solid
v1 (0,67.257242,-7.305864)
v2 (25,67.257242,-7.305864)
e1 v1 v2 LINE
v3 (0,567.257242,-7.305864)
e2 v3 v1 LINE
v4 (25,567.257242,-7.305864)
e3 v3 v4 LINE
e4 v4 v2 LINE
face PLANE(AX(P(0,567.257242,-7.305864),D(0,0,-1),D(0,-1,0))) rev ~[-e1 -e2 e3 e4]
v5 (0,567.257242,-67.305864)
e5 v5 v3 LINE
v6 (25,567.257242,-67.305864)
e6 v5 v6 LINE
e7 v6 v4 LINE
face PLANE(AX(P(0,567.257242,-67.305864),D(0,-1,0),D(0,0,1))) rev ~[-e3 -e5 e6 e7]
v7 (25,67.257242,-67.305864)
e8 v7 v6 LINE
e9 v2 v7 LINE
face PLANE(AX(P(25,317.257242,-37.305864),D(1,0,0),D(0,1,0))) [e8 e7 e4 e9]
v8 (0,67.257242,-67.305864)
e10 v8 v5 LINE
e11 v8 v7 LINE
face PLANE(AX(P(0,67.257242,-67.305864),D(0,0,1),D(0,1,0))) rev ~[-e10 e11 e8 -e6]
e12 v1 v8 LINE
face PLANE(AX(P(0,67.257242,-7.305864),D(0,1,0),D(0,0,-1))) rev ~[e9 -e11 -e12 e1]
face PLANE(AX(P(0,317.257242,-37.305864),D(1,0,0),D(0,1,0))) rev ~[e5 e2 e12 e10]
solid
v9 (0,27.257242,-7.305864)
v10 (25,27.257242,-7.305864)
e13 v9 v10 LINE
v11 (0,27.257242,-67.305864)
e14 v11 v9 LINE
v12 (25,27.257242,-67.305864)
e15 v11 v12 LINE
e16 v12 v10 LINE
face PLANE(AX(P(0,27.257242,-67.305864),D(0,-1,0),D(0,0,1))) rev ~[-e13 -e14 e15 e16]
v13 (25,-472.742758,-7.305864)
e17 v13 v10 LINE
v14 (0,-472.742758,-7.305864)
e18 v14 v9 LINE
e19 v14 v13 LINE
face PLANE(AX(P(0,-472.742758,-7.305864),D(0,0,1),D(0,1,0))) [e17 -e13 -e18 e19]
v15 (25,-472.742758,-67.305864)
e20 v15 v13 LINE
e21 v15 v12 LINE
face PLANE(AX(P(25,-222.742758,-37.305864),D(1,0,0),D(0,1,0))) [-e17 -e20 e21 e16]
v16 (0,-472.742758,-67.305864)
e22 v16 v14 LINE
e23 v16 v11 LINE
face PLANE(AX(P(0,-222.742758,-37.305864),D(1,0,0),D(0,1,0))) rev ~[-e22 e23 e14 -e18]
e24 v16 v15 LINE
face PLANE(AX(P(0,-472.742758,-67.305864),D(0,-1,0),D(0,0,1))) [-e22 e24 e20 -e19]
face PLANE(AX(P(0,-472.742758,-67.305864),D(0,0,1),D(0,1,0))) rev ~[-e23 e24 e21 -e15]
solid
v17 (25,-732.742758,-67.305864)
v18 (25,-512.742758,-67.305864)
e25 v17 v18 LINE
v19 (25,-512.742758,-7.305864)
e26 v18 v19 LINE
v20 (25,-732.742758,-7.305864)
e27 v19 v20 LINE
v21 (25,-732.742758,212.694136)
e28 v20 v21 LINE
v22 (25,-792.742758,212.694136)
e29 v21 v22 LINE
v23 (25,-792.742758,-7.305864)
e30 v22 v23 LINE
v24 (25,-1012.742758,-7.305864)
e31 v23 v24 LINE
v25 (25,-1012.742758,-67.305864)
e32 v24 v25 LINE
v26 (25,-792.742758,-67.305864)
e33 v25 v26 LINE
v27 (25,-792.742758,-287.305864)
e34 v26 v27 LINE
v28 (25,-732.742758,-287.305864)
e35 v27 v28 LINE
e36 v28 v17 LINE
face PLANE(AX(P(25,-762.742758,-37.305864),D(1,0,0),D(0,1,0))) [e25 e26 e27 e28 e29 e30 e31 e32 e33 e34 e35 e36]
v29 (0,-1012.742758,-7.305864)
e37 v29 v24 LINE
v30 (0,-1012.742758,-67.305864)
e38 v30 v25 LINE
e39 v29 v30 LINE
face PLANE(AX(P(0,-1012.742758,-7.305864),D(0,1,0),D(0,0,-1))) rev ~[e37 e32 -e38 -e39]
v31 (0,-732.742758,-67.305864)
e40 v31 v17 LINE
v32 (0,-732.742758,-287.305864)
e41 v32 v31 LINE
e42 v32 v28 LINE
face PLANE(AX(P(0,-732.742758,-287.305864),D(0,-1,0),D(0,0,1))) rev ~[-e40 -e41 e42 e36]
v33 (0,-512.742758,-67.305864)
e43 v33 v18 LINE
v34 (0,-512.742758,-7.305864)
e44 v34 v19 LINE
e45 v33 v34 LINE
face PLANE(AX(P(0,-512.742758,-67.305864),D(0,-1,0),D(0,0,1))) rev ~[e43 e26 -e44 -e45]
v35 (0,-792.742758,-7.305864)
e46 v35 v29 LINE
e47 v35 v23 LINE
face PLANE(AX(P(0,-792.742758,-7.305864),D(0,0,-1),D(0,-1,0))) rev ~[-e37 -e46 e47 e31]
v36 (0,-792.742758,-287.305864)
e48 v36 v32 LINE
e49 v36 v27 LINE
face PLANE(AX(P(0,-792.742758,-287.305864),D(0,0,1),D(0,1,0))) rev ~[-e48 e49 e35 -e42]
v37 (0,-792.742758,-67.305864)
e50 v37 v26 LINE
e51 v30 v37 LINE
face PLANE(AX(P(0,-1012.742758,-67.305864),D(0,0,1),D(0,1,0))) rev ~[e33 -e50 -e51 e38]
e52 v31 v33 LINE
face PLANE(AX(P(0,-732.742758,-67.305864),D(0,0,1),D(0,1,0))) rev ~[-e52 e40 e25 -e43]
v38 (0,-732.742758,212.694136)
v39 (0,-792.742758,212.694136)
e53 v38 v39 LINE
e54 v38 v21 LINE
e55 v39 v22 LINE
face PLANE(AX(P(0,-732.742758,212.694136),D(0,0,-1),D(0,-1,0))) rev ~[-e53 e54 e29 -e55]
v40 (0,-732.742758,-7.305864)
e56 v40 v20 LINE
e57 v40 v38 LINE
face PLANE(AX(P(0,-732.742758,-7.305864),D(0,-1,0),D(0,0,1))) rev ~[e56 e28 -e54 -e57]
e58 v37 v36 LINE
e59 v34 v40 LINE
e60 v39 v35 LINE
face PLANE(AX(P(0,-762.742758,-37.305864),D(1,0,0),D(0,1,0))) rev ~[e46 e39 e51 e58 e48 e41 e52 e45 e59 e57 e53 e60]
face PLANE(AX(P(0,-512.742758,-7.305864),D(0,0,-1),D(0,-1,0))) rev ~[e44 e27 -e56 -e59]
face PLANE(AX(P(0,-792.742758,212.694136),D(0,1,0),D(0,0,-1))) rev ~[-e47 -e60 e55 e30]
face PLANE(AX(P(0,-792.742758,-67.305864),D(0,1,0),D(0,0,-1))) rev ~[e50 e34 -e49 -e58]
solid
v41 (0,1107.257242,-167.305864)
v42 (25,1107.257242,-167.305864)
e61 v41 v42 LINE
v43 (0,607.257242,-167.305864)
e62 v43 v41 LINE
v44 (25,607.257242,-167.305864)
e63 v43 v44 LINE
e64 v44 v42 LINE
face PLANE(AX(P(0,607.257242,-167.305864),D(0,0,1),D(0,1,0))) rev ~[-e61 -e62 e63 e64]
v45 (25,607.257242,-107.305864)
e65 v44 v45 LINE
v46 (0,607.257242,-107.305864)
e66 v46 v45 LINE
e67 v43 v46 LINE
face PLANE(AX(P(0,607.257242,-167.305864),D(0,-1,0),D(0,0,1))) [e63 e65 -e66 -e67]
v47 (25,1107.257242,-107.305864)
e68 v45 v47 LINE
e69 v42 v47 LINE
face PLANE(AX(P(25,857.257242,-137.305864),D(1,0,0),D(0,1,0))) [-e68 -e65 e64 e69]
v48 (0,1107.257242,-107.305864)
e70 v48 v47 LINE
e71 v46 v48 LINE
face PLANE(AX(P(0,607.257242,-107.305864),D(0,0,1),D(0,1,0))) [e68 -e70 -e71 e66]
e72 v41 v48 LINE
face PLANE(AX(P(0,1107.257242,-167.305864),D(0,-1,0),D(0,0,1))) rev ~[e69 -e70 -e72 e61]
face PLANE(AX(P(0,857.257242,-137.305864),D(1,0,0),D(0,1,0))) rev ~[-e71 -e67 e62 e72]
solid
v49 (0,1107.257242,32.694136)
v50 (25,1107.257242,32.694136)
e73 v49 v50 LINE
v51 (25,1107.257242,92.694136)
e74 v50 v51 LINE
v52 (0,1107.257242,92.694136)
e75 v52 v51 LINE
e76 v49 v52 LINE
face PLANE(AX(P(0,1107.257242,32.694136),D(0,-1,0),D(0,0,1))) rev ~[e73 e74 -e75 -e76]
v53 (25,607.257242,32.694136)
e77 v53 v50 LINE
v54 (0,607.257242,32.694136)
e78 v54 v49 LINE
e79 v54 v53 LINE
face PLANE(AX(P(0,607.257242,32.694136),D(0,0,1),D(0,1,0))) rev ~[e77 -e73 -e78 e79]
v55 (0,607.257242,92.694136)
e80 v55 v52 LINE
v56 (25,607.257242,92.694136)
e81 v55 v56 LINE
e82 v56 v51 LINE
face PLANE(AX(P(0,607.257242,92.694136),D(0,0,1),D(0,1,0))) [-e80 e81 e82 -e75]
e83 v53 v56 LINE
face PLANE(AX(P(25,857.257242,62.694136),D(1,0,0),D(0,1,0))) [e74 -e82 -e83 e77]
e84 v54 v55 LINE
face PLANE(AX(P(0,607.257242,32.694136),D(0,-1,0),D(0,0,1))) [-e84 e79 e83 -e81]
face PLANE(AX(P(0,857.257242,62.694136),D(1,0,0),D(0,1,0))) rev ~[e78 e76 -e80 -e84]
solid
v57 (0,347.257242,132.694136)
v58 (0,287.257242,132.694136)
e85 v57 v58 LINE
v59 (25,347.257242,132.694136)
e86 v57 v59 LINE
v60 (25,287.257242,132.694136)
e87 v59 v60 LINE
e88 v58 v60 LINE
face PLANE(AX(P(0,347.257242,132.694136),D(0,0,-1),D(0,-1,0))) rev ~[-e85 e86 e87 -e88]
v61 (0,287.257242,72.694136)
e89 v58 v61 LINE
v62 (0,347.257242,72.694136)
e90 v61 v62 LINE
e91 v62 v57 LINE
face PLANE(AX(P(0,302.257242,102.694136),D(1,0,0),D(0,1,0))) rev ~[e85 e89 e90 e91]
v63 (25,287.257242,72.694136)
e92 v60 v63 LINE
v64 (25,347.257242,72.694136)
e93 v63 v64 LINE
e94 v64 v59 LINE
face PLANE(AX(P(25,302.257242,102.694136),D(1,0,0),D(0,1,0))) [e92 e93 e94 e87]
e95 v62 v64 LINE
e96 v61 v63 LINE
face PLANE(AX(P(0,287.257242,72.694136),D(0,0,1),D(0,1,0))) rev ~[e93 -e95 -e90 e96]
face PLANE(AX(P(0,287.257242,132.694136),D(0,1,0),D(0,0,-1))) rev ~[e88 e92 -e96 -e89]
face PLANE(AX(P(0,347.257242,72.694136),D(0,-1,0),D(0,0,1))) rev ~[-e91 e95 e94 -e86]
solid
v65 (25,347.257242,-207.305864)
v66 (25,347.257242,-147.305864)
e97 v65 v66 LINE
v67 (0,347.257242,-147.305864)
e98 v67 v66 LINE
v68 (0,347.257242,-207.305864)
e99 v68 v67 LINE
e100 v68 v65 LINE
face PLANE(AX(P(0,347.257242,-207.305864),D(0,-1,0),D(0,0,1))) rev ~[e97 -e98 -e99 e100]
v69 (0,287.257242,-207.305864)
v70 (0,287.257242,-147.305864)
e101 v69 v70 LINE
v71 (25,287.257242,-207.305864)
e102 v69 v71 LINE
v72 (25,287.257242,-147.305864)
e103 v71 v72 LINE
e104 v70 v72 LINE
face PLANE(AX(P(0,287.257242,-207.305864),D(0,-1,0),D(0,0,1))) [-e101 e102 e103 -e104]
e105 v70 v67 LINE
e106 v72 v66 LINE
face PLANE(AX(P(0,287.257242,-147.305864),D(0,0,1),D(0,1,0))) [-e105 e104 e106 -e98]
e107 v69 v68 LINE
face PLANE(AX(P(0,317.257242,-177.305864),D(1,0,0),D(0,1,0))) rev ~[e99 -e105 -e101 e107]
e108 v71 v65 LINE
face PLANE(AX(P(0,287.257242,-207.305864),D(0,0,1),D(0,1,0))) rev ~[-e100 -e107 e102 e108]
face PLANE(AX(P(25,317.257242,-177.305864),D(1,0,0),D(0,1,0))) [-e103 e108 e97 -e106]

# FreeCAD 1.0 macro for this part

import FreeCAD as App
import Part
import Sketcher
Q = App.Units.Quantity

doc = App.newDocument("Part")
body = doc.addObject("PartDesign::Body", "Body")
body.AllowCompound = True

# Sketch on YZ plane
sketch1 = doc.addObject("Sketcher::SketchObject", "Sketch")
body.addObject(sketch1)
sketch1.AttachmentSupport = (doc.YZ_Plane, [""])
sketch1.MapMode = "FlatFace"
sketch1.addGeometry(Part.LineSegment(App.Vector(-793, 213, 0), App.Vector(-793, -7, 0)), False)
sketch1.addGeometry(Part.LineSegment(App.Vector(-793, -7, 0), App.Vector(-1013, -7, 0)), False)
sketch1.addGeometry(Part.LineSegment(App.Vector(-1013, -7, 0), App.Vector(-1013, -67, 0)), False)
sketch1.addGeometry(Part.LineSegment(App.Vector(-1013, -67, 0), App.Vector(-793, -67, 0)), False)
sketch1.addGeometry(Part.LineSegment(App.Vector(-793, -67, 0), App.Vector(-793, -287, 0)), False)
sketch1.addGeometry(Part.LineSegment(App.Vector(-793, -287, 0), App.Vector(-733, -287, 0)), False)
sketch1.addGeometry(Part.LineSegment(App.Vector(-733, -287, 0), App.Vector(-733, -67, 0)), False)
sketch1.addGeometry(Part.LineSegment(App.Vector(-733, -67, 0), App.Vector(-513, -67, 0)), False)
sketch1.addGeometry(Part.LineSegment(App.Vector(-513, -67, 0), App.Vector(-513, -7, 0)), False)
sketch1.addGeometry(Part.LineSegment(App.Vector(-513, -7, 0), App.Vector(-733, -7, 0)), False)
sketch1.addGeometry(Part.LineSegment(App.Vector(-733, -7, 0), App.Vector(-733, 213, 0)), False)
sketch1.addGeometry(Part.LineSegment(App.Vector(-733, 213, 0), App.Vector(-793, 213, 0)), False)
sketch1.addGeometry(Part.LineSegment(App.Vector(67, -7, 0), App.Vector(67, -67, 0)), False)
sketch1.addGeometry(Part.LineSegment(App.Vector(67, -67, 0), App.Vector(567, -67, 0)), False)
sketch1.addGeometry(Part.LineSegment(App.Vector(567, -67, 0), App.Vector(567, -7, 0)), False)
sketch1.addGeometry(Part.LineSegment(App.Vector(567, -7, 0), App.Vector(67, -7, 0)), False)
sketch1.addGeometry(Part.LineSegment(App.Vector(-473, -7, 0), App.Vector(-473, -67, 0)), False)
sketch1.addGeometry(Part.LineSegment(App.Vector(-473, -67, 0), App.Vector(27, -67, 0)), False)
sketch1.addGeometry(Part.LineSegment(App.Vector(27, -67, 0), App.Vector(27, -7, 0)), False)
sketch1.addGeometry(Part.LineSegment(App.Vector(27, -7, 0), App.Vector(-473, -7, 0)), False)
sketch1.addGeometry(Part.LineSegment(App.Vector(287, 73, 0), App.Vector(347, 73, 0)), False)
sketch1.addGeometry(Part.LineSegment(App.Vector(347, 73, 0), App.Vector(347, 133, 0)), False)
sketch1.addGeometry(Part.LineSegment(App.Vector(347, 133, 0), App.Vector(287, 133, 0)), False)
sketch1.addGeometry(Part.LineSegment(App.Vector(287, 133, 0), App.Vector(287, 73, 0)), False)
sketch1.addGeometry(Part.LineSegment(App.Vector(287, -147, 0), App.Vector(287, -207, 0)), False)
sketch1.addGeometry(Part.LineSegment(App.Vector(287, -207, 0), App.Vector(347, -207, 0)), False)
sketch1.addGeometry(Part.LineSegment(App.Vector(347, -207, 0), App.Vector(347, -147, 0)), False)
sketch1.addGeometry(Part.LineSegment(App.Vector(347, -147, 0), App.Vector(287, -147, 0)), False)
sketch1.addGeometry(Part.LineSegment(App.Vector(607, 93, 0), App.Vector(607, 33, 0)), False)
sketch1.addGeometry(Part.LineSegment(App.Vector(607, 33, 0), App.Vector(1107, 33, 0)), False)
sketch1.addGeometry(Part.LineSegment(App.Vector(1107, 33, 0), App.Vector(1107, 93, 0)), False)
sketch1.addGeometry(Part.LineSegment(App.Vector(1107, 93, 0), App.Vector(607, 93, 0)), False)
sketch1.addGeometry(Part.LineSegment(App.Vector(607, -107, 0), App.Vector(607, -167, 0)), False)
sketch1.addGeometry(Part.LineSegment(App.Vector(607, -167, 0), App.Vector(1107, -167, 0)), False)
sketch1.addGeometry(Part.LineSegment(App.Vector(1107, -167, 0), App.Vector(1107, -107, 0)), False)
sketch1.addGeometry(Part.LineSegment(App.Vector(1107, -107, 0), App.Vector(607, -107, 0)), False)
sketch1.addConstraint(Sketcher.Constraint("Coincident", 0, 2, 1, 1))
sketch1.addConstraint(Sketcher.Constraint("Coincident", 1, 2, 2, 1))
sketch1.addConstraint(Sketcher.Constraint("Coincident", 2, 2, 3, 1))
sketch1.addConstraint(Sketcher.Constraint("Coincident", 3, 2, 4, 1))
sketch1.addConstraint(Sketcher.Constraint("Coincident", 4, 2, 5, 1))
sketch1.addConstraint(Sketcher.Constraint("Coincident", 5, 2, 6, 1))
sketch1.addConstraint(Sketcher.Constraint("Coincident", 6, 2, 7, 1))
sketch1.addConstraint(Sketcher.Constraint("Coincident", 7, 2, 8, 1))
sketch1.addConstraint(Sketcher.Constraint("Coincident", 8, 2, 9, 1))
sketch1.addConstraint(Sketcher.Constraint("Coincident", 9, 2, 10, 1))
sketch1.addConstraint(Sketcher.Constraint("Coincident", 10, 2, 11, 1))
sketch1.addConstraint(Sketcher.Constraint("Coincident", 11, 2, 0, 1))
sketch1.addConstraint(Sketcher.Constraint("Coincident", 12, 2, 13, 1))
sketch1.addConstraint(Sketcher.Constraint("Coincident", 13, 2, 14, 1))
sketch1.addConstraint(Sketcher.Constraint("Coincident", 14, 2, 15, 1))
sketch1.addConstraint(Sketcher.Constraint("Coincident", 15, 2, 12, 1))
sketch1.addConstraint(Sketcher.Constraint("Coincident", 16, 2, 17, 1))
sketch1.addConstraint(Sketcher.Constraint("Coincident", 17, 2, 18, 1))
sketch1.addConstraint(Sketcher.Constraint("Coincident", 18, 2, 19, 1))
sketch1.addConstraint(Sketcher.Constraint("Coincident", 19, 2, 16, 1))
sketch1.addConstraint(Sketcher.Constraint("Coincident", 20, 2, 21, 1))
sketch1.addConstraint(Sketcher.Constraint("Coincident", 21, 2, 22, 1))
sketch1.addConstraint(Sketcher.Constraint("Coincident", 22, 2, 23, 1))
sketch1.addConstraint(Sketcher.Constraint("Coincident", 23, 2, 20, 1))
sketch1.addConstraint(Sketcher.Constraint("Coincident", 24, 2, 25, 1))
sketch1.addConstraint(Sketcher.Constraint("Coincident", 25, 2, 26, 1))
sketch1.addConstraint(Sketcher.Constraint("Coincident", 26, 2, 27, 1))
sketch1.addConstraint(Sketcher.Constraint("Coincident", 27, 2, 24, 1))
sketch1.addConstraint(Sketcher.Constraint("Coincident", 28, 2, 29, 1))
sketch1.addConstraint(Sketcher.Constraint("Coincident", 29, 2, 30, 1))
sketch1.addConstraint(Sketcher.Constraint("Coincident", 30, 2, 31, 1))
sketch1.addConstraint(Sketcher.Constraint("Coincident", 31, 2, 28, 1))
sketch1.addConstraint(Sketcher.Constraint("Coincident", 32, 2, 33, 1))
sketch1.addConstraint(Sketcher.Constraint("Coincident", 33, 2, 34, 1))
sketch1.addConstraint(Sketcher.Constraint("Coincident", 34, 2, 35, 1))
sketch1.addConstraint(Sketcher.Constraint("Coincident", 35, 2, 32, 1))
sketch1.addConstraint(Sketcher.Constraint("Vertical", 0))
sketch1.addConstraint(Sketcher.Constraint("Horizontal", 1))
sketch1.addConstraint(Sketcher.Constraint("Vertical", 2))
sketch1.addConstraint(Sketcher.Constraint("Horizontal", 3))
sketch1.addConstraint(Sketcher.Constraint("Vertical", 4))
sketch1.addConstraint(Sketcher.Constraint("Horizontal", 5))
sketch1.addConstraint(Sketcher.Constraint("Vertical", 6))
sketch1.addConstraint(Sketcher.Constraint("Horizontal", 7))
sketch1.addConstraint(Sketcher.Constraint("Vertical", 8))
sketch1.addConstraint(Sketcher.Constraint("Horizontal", 9))
sketch1.addConstraint(Sketcher.Constraint("Vertical", 10))
sketch1.addConstraint(Sketcher.Constraint("Horizontal", 11))
sketch1.addConstraint(Sketcher.Constraint("Vertical", 12))
sketch1.addConstraint(Sketcher.Constraint("Horizontal", 13))
sketch1.addConstraint(Sketcher.Constraint("Vertical", 14))
sketch1.addConstraint(Sketcher.Constraint("Horizontal", 15))
sketch1.addConstraint(Sketcher.Constraint("Vertical", 16))
sketch1.addConstraint(Sketcher.Constraint("Horizontal", 17))
sketch1.addConstraint(Sketcher.Constraint("Vertical", 18))
sketch1.addConstraint(Sketcher.Constraint("Horizontal", 19))
sketch1.addConstraint(Sketcher.Constraint("Horizontal", 20))
sketch1.addConstraint(Sketcher.Constraint("Vertical", 21))
sketch1.addConstraint(Sketcher.Constraint("Horizontal", 22))
sketch1.addConstraint(Sketcher.Constraint("Vertical", 23))
sketch1.addConstraint(Sketcher.Constraint("Vertical", 24))
sketch1.addConstraint(Sketcher.Constraint("Horizontal", 25))
sketch1.addConstraint(Sketcher.Constraint("Vertical", 26))
sketch1.addConstraint(Sketcher.Constraint("Horizontal", 27))
sketch1.addConstraint(Sketcher.Constraint("Vertical", 28))
sketch1.addConstraint(Sketcher.Constraint("Horizontal", 29))
sketch1.addConstraint(Sketcher.Constraint("Vertical", 30))
sketch1.addConstraint(Sketcher.Constraint("Horizontal", 31))
sketch1.addConstraint(Sketcher.Constraint("Vertical", 32))
sketch1.addConstraint(Sketcher.Constraint("Horizontal", 33))
sketch1.addConstraint(Sketcher.Constraint("Vertical", 34))
sketch1.addConstraint(Sketcher.Constraint("Horizontal", 35))
sketch1.addConstraint(Sketcher.Constraint("Horizontal", 3, 2, 6, 2))
sketch1.addConstraint(Sketcher.Constraint("Horizontal", 1, 2, 8, 2))
sketch1.addConstraint(Sketcher.Constraint("Horizontal", 7, 2, 12, 2))
sketch1.addConstraint(Sketcher.Constraint("Horizontal", 9, 2, 14, 2))
sketch1.addConstraint(Sketcher.Constraint("Horizontal", 13, 2, 16, 2))
sketch1.addConstraint(Sketcher.Constraint("Horizontal", 15, 2, 18, 2))
sketch1.addConstraint(Sketcher.Constraint("Vertical", 0, 2, 3, 2))
sketch1.addConstraint(Sketcher.Constraint("Vertical", 6, 2, 9, 2))
sketch1.addConstraint(Sketcher.Constraint("Vertical", 23, 2, 24, 2))
sketch1.addConstraint(Sketcher.Constraint("Vertical", 21, 2, 25, 2))
sketch1.addConstraint(Sketcher.Constraint("Vertical", 31, 2, 32, 2))
sketch1.addConstraint(Sketcher.Constraint("Vertical", 30, 2, 33, 2))
sketch1.addConstraint(Sketcher.Constraint("Equal", 3, 7))
sketch1.addConstraint(Sketcher.Constraint("Equal", 15, 17))
sketch1.addConstraint(Sketcher.Constraint("Equal", 11, 20))
sketch1.addConstraint(Sketcher.Constraint("Equal", 19, 29))
sketch1.addConstraint(Sketcher.Constraint("Equal", 9, 0))
sketch1.addConstraint(Sketcher.Constraint("Equal", 27, 2))
sketch1.addConstraint(Sketcher.Constraint("Equal", 0, 4))
sketch1.addConstraint(Sketcher.Constraint("Equal", 18, 21))
sketch1.addConstraint(Sketcher.Constraint("Equal", 23, 24))
sketch1.addConstraint(Sketcher.Constraint("Equal", 26, 28))
sketch1.addConstraint(Sketcher.Constraint("Equal", 30, 32))
sketch1.addConstraint(Sketcher.Constraint("DistanceX", 1, 2, 1, 1, Q("220 mm")))
sketch1.addConstraint(Sketcher.Constraint("DistanceX", 5, 1, 5, 2, Q("60 mm")))
sketch1.addConstraint(Sketcher.Constraint("DistanceX", 13, 1, 13, 2, Q("500 mm")))
sketch1.addConstraint(Sketcher.Constraint("DistanceX", 7, 2, 12, 2, Q("580 mm")))
sketch1.addConstraint(Sketcher.Constraint("DistanceX", 7, 2, 16, 2, Q("40 mm")))
sketch1.addConstraint(Sketcher.Constraint("DistanceX", 20, 2, 14, 2, Q("220 mm")))
sketch1.addConstraint(Sketcher.Constraint("DistanceY", 14, 2, 20, 2, Q("80 mm")))
sketch1.addConstraint(Sketcher.Constraint("DistanceY", 24, 2, 12, 2, Q("140 mm")))
sketch1.addConstraint(Sketcher.Constraint("DistanceX", 14, 2, 28, 2, Q("40 mm")))
sketch1.addConstraint(Sketcher.Constraint("DistanceY", 14, 2, 28, 2, Q("40 mm")))
sketch1.addConstraint(Sketcher.Constraint("DistanceY", 32, 2, 13, 2, Q("100 mm")))
sketch1.addConstraint(Sketcher.Constraint("DistanceX", 0, 2, -1, 1, Q("792.742758 mm")))
sketch1.addConstraint(Sketcher.Constraint("DistanceY", 0, 2, -1, 1, Q("7.305864 mm")))
pad1 = doc.addObject("PartDesign::Pad", "Pad")
body.addObject(pad1)
pad1.Profile = sketch1
pad1.Length = 25

doc.recompute()
